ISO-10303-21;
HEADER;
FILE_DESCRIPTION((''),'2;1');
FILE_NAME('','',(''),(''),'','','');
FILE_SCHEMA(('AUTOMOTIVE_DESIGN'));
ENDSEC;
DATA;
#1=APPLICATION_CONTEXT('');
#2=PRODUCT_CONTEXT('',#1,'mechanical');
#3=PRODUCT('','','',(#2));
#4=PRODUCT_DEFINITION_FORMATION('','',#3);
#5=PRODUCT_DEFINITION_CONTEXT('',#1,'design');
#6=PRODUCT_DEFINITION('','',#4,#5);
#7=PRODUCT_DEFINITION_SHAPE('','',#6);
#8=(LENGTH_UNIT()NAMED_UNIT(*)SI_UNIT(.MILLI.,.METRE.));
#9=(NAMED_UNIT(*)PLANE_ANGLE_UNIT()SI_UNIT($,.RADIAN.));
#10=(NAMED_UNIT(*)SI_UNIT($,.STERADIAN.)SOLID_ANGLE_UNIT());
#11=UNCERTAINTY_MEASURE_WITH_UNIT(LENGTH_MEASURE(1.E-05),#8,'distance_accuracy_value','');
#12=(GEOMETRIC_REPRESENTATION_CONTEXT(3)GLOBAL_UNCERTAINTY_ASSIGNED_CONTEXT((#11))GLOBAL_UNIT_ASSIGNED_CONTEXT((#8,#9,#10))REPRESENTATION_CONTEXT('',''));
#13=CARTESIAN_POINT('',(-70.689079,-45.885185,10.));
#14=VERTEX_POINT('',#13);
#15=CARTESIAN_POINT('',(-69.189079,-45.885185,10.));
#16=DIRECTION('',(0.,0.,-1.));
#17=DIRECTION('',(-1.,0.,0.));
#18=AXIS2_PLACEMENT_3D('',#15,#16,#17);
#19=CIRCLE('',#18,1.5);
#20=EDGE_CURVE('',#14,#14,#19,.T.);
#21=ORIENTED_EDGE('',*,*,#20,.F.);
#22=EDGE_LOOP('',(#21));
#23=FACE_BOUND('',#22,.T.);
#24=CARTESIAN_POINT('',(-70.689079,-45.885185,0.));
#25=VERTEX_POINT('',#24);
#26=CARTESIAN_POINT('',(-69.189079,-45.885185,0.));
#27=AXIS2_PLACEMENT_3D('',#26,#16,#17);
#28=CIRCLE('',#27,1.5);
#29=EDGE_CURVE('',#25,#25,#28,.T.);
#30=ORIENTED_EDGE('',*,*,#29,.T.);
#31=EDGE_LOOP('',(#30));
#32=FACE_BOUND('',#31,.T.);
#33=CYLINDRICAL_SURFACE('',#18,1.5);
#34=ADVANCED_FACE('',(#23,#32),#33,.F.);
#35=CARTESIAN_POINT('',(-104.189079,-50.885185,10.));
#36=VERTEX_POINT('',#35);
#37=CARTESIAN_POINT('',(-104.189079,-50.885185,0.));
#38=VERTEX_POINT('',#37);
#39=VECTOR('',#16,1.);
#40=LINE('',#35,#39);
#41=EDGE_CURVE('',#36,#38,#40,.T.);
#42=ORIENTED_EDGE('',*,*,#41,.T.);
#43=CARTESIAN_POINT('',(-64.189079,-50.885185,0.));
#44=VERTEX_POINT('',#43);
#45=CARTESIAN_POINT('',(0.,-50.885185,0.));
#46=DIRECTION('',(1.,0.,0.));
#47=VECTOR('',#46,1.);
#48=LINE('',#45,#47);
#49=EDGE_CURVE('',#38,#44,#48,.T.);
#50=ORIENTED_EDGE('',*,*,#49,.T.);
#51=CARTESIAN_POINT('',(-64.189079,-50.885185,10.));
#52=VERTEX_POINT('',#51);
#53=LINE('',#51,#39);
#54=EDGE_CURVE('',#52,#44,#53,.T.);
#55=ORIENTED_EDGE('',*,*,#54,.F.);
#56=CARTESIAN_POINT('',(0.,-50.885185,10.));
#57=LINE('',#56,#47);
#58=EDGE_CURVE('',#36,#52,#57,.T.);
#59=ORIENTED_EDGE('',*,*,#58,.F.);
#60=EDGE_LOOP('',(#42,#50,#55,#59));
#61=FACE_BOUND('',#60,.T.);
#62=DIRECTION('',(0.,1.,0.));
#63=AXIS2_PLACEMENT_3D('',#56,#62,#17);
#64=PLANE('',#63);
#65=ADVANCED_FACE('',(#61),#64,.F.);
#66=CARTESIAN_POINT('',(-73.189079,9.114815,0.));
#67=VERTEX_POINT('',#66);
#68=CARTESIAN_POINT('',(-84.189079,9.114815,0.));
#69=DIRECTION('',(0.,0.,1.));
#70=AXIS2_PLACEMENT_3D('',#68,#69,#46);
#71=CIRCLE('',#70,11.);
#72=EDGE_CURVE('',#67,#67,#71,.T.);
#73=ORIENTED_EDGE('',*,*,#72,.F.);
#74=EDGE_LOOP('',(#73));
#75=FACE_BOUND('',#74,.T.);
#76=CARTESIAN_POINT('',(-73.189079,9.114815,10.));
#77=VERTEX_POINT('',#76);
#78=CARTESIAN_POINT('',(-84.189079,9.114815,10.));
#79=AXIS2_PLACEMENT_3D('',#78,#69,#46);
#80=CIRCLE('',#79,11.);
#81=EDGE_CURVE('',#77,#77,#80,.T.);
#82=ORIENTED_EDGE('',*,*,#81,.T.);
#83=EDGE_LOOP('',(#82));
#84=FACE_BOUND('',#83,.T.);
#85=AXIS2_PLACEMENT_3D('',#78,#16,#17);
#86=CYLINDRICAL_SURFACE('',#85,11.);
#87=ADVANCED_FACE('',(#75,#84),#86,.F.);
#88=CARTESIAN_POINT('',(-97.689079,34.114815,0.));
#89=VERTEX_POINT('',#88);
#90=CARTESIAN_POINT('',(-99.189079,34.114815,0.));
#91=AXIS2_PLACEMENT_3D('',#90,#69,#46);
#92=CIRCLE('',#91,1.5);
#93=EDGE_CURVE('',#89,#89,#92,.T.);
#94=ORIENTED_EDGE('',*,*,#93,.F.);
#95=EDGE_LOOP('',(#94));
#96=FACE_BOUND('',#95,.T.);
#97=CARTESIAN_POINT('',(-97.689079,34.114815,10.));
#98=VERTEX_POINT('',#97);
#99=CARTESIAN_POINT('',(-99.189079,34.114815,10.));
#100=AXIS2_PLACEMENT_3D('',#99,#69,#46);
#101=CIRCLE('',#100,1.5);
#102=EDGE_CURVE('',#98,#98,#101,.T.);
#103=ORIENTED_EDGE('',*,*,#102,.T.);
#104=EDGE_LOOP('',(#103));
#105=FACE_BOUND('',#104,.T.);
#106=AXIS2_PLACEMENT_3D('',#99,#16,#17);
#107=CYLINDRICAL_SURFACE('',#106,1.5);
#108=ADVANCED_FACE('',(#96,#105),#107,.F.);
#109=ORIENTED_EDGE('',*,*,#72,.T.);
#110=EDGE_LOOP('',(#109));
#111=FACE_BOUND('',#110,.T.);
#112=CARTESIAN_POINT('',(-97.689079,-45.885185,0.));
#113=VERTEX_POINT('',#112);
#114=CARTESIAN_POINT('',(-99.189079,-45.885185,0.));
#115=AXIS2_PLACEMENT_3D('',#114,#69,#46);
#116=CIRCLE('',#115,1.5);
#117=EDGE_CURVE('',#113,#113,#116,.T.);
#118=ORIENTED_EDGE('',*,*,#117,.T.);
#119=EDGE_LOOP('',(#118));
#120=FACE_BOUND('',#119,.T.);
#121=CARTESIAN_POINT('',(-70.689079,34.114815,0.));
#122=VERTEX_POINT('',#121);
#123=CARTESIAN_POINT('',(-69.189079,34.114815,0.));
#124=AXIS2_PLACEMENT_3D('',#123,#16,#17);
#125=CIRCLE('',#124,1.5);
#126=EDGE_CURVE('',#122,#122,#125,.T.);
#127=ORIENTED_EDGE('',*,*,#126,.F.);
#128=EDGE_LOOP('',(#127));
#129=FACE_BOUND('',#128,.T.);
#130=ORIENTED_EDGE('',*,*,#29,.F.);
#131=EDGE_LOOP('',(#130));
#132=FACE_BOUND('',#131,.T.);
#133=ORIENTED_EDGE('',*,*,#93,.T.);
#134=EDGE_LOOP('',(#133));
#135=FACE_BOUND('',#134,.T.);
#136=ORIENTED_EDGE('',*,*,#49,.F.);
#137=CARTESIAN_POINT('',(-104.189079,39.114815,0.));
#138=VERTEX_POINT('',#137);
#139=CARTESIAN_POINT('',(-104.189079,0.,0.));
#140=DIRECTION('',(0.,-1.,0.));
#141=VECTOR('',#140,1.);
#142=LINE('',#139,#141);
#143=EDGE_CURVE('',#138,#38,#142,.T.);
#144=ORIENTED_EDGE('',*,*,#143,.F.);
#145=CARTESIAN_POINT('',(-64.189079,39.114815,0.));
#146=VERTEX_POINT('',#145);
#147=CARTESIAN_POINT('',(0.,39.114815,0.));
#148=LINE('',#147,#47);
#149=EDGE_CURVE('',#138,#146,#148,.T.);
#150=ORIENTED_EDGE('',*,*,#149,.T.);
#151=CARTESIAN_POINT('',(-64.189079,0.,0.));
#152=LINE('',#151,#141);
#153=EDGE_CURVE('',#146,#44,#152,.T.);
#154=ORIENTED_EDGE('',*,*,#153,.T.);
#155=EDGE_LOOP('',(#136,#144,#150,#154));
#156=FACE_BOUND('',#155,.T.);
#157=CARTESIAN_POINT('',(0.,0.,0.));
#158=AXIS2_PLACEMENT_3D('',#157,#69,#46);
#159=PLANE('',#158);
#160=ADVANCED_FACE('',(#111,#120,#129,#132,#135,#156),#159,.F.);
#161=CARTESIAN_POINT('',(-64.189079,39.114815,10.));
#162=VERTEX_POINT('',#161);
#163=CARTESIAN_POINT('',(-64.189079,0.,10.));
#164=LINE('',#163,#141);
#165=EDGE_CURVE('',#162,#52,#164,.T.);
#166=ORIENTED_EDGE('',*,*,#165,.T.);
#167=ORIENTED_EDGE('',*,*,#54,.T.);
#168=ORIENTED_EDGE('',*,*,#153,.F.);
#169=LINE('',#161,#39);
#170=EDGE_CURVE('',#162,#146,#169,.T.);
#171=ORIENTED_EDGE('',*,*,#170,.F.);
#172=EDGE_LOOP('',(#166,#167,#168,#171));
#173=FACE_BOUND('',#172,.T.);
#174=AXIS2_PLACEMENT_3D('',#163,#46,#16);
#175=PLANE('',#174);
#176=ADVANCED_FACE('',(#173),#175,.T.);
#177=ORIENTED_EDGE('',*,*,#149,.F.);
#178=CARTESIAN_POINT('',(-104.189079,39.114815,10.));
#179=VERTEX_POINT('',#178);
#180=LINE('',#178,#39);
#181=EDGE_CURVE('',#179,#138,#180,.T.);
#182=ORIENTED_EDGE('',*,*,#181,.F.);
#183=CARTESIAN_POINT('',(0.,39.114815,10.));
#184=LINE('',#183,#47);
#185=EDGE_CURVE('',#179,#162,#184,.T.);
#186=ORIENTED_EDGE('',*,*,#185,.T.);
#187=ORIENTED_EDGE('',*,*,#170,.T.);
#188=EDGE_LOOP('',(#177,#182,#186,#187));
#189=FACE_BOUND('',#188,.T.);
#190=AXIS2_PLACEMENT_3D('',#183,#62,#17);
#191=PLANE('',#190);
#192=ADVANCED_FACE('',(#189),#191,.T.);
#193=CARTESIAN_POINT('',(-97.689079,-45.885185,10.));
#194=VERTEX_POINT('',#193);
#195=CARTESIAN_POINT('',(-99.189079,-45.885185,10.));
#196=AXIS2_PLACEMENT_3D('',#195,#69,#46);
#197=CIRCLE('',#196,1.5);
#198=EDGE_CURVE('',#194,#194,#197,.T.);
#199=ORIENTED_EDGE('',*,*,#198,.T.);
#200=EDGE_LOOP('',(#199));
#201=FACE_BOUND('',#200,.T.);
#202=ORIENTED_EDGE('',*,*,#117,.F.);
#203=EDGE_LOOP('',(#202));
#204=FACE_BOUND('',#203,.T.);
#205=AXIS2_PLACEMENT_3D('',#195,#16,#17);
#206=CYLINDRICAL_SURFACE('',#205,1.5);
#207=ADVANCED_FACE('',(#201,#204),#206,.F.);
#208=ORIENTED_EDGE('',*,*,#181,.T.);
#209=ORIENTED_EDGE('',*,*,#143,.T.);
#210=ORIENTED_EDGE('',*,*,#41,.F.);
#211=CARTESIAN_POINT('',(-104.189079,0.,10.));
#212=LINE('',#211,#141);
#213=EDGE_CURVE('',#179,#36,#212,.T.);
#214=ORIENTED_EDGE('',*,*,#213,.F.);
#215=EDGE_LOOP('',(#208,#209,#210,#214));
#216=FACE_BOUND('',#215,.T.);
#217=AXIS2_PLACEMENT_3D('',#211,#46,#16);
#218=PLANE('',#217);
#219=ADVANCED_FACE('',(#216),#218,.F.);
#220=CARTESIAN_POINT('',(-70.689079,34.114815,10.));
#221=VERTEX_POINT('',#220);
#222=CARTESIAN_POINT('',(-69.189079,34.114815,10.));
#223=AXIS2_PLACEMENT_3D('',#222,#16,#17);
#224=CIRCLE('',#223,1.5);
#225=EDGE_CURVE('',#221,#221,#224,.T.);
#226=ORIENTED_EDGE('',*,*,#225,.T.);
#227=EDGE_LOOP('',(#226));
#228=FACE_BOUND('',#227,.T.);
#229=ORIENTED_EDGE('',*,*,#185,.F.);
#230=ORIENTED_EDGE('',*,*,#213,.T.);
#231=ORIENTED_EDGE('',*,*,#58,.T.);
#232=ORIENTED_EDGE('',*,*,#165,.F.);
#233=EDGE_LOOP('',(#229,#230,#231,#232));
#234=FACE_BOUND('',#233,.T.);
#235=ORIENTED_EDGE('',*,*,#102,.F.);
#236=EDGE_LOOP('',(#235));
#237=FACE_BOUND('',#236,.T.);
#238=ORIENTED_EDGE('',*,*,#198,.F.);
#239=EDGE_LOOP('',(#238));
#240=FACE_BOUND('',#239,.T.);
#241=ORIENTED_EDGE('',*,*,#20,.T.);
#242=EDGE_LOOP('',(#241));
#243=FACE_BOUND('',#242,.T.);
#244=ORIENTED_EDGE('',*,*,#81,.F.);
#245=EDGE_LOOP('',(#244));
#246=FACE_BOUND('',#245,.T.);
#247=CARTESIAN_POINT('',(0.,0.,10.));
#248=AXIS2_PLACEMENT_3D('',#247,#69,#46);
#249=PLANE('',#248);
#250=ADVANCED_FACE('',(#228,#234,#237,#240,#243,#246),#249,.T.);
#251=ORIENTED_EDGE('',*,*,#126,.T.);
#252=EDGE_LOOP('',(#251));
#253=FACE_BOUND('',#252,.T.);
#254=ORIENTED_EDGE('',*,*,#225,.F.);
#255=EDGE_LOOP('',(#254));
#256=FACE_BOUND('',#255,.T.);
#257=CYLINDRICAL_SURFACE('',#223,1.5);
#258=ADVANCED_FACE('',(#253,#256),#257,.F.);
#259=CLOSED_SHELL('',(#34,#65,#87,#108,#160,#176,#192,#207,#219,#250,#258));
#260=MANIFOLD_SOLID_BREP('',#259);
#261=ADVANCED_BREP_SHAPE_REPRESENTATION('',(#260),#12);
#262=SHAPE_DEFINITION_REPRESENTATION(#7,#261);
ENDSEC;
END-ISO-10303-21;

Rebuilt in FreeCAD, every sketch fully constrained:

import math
import FreeCAD as App
import Part
import Sketcher

V = App.Vector

doc = App.newDocument("Part")
body = doc.addObject("PartDesign::Body", "Body")

sketch1 = body.newObject("Sketcher::SketchObject", "Sketch")
sketch1.AttachmentSupport = (doc.getObject("XY_Plane"), [""])
sketch1.MapMode = "FlatFace"
sketch1.addGeometry(Part.LineSegment(V(-104.2, 39.1, 0), V(-104.2, -50.9, 0)), False)
sketch1.addGeometry(Part.LineSegment(V(-104.2, -50.9, 0), V(-84.2, -50.9, 0)), False)
sketch1.addGeometry(Part.LineSegment(V(-84.2, -50.9, 0), V(-84.2, -1.9, 0)), False)
sketch1.addGeometry(Part.ArcOfCircle(Part.Circle(V(-84.2, 9.1, 0), V(0, 0, 1), 11), math.radians(90), math.radians(270)), False)
sketch1.addGeometry(Part.LineSegment(V(-84.2, 20.1, 0), V(-84.2, 39.1, 0)), False)
sketch1.addGeometry(Part.LineSegment(V(-84.2, 39.1, 0), V(-104.2, 39.1, 0)), False)
sketch1.addGeometry(Part.Circle(V(-99.2, -45.9, 0), V(0, 0, 1), 1.5), False)
sketch1.addGeometry(Part.Circle(V(-99.2, 34.1, 0), V(0, 0, 1), 1.5), False)
sketch1.addConstraint(Sketcher.Constraint("Coincident", 0, 2, 1, 1))
sketch1.addConstraint(Sketcher.Constraint("Coincident", 1, 2, 2, 1))
sketch1.addConstraint(Sketcher.Constraint("Coincident", 2, 2, 3, 2))
sketch1.addConstraint(Sketcher.Constraint("Coincident", 3, 1, 4, 1))
sketch1.addConstraint(Sketcher.Constraint("Coincident", 4, 2, 5, 1))
sketch1.addConstraint(Sketcher.Constraint("Coincident", 5, 2, 0, 1))
sketch1.addConstraint(Sketcher.Constraint("Vertical", 0))
sketch1.addConstraint(Sketcher.Constraint("Horizontal", 1))
sketch1.addConstraint(Sketcher.Constraint("Vertical", 2))
sketch1.addConstraint(Sketcher.Constraint("Vertical", 4))
sketch1.addConstraint(Sketcher.Constraint("Horizontal", 5))
sketch1.addConstraint(Sketcher.Constraint("Equal", 6, 7))
sketch1.addConstraint(Sketcher.Constraint("Vertical", 6, 3, 7, 3))
sketch1.addConstraint(Sketcher.Constraint("Vertical", 3, 3, 1, 2))
sketch1.addConstraint(Sketcher.Constraint("Vertical", 2, 2, 3, 1))
sketch1.addConstraint(Sketcher.Constraint("Diameter", 6, 3.0))
sketch1.addConstraint(Sketcher.Constraint("Radius", 3, 11.0))
sketch1.addConstraint(Sketcher.Constraint("DistanceX", 1, 1, 1, 2, 20.0))
sketch1.addConstraint(Sketcher.Constraint("DistanceY", 0, 2, 0, 1, 90.0))
sketch1.addConstraint(Sketcher.Constraint("DistanceY", 2, 1, 2, 2, 49.0))
sketch1.addConstraint(Sketcher.Constraint("DistanceX", 6, 3, 3, 3, 15.0))
sketch1.addConstraint(Sketcher.Constraint("DistanceY", 6, 3, 3, 3, 55.0))
sketch1.addConstraint(Sketcher.Constraint("DistanceY", 3, 3, 7, 3, 25.0))
sketch1.addConstraint(Sketcher.Constraint("DistanceX", 3, 3, -1, 1, 84.189079))
sketch1.addConstraint(Sketcher.Constraint("DistanceY", -1, 1, 3, 3, 9.114815))
pad1 = body.newObject("PartDesign::Pad", "Pad")
pad1.Profile = sketch1
pad1.Length = 10
doc.recompute()

datumplane = body.newObject("PartDesign::Plane", "DatumPlane")
datumplane.AttachmentSupport = (doc.getObject("YZ_Plane"), [""])
datumplane.MapMode = "FlatFace"
datumplane.AttachmentOffset = App.Placement(V(0, 0, -84.189079), App.Rotation())
mirrored = body.newObject("PartDesign::Mirrored", "Mirrored")
mirrored.Originals = [pad1]
mirrored.MirrorPlane = (datumplane, [""])
body.Tip = mirrored

doc.recompute()
